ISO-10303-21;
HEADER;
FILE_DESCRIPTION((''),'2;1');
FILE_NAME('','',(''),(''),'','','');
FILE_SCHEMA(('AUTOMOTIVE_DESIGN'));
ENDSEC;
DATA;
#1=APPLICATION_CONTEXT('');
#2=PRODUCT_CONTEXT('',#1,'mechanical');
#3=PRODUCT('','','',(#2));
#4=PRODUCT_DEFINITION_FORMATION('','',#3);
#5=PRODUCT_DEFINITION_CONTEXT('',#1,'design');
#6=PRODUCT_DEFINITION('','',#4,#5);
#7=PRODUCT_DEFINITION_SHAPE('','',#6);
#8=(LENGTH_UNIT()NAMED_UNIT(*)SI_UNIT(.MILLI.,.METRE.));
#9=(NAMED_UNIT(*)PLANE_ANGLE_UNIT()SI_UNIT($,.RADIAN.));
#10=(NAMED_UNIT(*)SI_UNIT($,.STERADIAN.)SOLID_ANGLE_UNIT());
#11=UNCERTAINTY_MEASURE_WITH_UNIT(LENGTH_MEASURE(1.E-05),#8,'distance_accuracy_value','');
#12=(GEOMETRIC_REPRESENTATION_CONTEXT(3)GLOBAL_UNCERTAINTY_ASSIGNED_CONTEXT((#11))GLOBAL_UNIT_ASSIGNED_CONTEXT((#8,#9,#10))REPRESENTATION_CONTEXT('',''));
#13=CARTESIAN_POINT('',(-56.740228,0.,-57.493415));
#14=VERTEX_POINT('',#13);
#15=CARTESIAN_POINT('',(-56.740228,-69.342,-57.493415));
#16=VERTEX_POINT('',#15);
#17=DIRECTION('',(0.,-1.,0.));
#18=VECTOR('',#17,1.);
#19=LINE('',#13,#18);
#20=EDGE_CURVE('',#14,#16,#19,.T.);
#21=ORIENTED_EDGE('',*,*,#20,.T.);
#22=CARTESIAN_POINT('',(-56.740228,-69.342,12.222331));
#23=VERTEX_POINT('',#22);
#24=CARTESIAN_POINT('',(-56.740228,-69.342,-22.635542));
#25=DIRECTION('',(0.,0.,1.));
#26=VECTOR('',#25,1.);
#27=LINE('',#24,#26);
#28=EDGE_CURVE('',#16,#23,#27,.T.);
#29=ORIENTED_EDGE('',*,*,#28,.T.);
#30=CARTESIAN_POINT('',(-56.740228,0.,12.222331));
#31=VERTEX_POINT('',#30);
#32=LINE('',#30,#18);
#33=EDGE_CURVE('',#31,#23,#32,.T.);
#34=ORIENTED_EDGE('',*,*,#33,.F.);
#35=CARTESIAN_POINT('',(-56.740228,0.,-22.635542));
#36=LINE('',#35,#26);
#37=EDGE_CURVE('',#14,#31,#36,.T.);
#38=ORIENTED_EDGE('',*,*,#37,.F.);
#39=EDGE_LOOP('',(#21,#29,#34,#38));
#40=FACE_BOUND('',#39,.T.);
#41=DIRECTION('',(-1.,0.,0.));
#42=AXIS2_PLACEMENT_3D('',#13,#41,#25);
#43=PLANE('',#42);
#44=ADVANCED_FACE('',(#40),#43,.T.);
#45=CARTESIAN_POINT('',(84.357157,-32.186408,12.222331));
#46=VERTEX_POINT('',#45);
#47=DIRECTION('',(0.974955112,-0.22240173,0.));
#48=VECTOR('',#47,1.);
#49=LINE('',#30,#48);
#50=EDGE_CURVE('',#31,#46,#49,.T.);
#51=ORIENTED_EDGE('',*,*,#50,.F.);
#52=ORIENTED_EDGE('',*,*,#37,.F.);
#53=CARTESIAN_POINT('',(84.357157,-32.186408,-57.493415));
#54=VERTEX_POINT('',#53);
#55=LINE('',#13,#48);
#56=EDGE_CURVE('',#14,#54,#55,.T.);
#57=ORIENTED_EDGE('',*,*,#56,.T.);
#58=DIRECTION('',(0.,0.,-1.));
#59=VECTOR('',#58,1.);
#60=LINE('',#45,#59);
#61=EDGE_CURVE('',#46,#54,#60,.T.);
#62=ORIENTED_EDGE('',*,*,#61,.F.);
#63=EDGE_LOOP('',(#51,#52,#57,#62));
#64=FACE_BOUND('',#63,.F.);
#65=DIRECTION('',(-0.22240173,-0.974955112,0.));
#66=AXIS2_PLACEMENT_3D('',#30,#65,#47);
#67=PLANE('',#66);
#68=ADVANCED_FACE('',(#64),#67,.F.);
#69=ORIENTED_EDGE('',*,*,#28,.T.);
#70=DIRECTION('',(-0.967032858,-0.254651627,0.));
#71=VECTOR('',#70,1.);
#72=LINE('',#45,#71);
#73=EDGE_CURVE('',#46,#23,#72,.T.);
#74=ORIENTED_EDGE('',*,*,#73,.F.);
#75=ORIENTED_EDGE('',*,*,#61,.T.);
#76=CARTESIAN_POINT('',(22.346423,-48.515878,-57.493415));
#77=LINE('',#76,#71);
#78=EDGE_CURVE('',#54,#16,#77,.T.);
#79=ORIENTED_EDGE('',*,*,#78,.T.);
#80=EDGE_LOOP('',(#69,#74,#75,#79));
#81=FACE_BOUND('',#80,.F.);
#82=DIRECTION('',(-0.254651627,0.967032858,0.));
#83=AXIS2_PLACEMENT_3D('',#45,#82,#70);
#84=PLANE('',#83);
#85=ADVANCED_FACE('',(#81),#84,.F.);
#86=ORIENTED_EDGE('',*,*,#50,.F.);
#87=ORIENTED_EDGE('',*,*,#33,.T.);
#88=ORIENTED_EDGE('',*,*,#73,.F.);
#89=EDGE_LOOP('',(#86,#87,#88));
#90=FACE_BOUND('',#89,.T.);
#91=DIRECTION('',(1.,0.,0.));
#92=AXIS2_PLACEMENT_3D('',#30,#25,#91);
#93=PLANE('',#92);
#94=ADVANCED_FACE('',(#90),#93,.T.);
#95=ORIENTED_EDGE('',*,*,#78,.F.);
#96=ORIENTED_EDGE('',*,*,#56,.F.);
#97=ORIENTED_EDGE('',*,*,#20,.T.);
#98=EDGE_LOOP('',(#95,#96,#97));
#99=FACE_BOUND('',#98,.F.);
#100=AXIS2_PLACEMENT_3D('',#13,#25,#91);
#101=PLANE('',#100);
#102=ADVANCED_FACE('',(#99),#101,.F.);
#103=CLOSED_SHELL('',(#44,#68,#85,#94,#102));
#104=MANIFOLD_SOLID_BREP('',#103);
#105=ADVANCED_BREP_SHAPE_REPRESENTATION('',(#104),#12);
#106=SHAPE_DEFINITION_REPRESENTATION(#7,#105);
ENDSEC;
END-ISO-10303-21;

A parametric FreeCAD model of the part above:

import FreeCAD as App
import Part
import Sketcher
Q = App.Units.Quantity

doc = App.newDocument("Part")
params = doc.addObject("Spreadsheet::Sheet", "Params")
for row, (alias, value) in enumerate([
    ("pad1_length", "2.73 in"),
    ("pocket1_length", "4.53 in"),
    ("pocket2_length", "4.77 in"),
], start=1):
    params.set(f"A{row}", alias)
    params.set(f"B{row}", "=" + value)
    params.setAlias(f"B{row}", alias)

body = doc.addObject("PartDesign::Body", "Body")

sketch1 = body.newObject("Sketcher::SketchObject", "Sketch")
sketch1.AttachmentSupport = (doc.getObject("XZ_Plane"), [""])
sketch1.MapMode = "FlatFace"
sketch1.addGeometry([
    Part.LineSegment(App.Vector(-57, 12, 0), App.Vector(-57, -57, 0)),
    Part.LineSegment(App.Vector(-57, -57, 0), App.Vector(84, -57, 0)),
    Part.LineSegment(App.Vector(84, -57, 0), App.Vector(84, 12, 0)),
    Part.LineSegment(App.Vector(84, 12, 0), App.Vector(-57, 12, 0)),
], False)
sketch1.addConstraint([
    Sketcher.Constraint("Coincident", 0, 2, 1, 1),
    Sketcher.Constraint("Coincident", 1, 2, 2, 1),
    Sketcher.Constraint("Coincident", 2, 2, 3, 1),
    Sketcher.Constraint("Coincident", 3, 2, 0, 1),
    Sketcher.Constraint("Vertical", 0),
    Sketcher.Constraint("Horizontal", 1),
    Sketcher.Constraint("Vertical", 2),
    Sketcher.Constraint("Horizontal", 3),
    Sketcher.Constraint("DistanceX", 1, 1, 1, 2, Q("141.097385 mm")),
    Sketcher.Constraint("DistanceY", 0, 2, 0, 1, Q("69.715746 mm")),
    Sketcher.Constraint("DistanceX", 0, 2, -1, 1, Q("56.740228 mm")),
    Sketcher.Constraint("DistanceY", -1, 1, 2, 2, Q("12.222331 mm")),
])
pad1 = body.newObject("PartDesign::Pad", "Pad")
pad1.Profile = sketch1
pad1.setExpression("Length", "Params.pad1_length")

sketch2 = body.newObject("Sketcher::SketchObject", "Sketch001")
sketch2.AttachmentSupport = (doc.getObject("XY_Plane"), [""])
sketch2.MapMode = "FlatFace"
sketch2.AttachmentOffset = App.Placement(App.Vector(0, 0, 12.222331), App.Rotation())
sketch2.addGeometry([
    Part.LineSegment(App.Vector(84, -32, 0), App.Vector(-57, -69, 0)),
    Part.LineSegment(App.Vector(-57, -69, 0), App.Vector(84, -69, 0)),
    Part.LineSegment(App.Vector(84, -69, 0), App.Vector(84, -32, 0)),
], False)
sketch2.addConstraint([
    Sketcher.Constraint("Coincident", 0, 2, 1, 1),
    Sketcher.Constraint("Coincident", 1, 2, 2, 1),
    Sketcher.Constraint("Coincident", 2, 2, 0, 1),
    Sketcher.Constraint("Horizontal", 1),
    Sketcher.Constraint("Vertical", 2),
    Sketcher.Constraint("DistanceY", 0, 2, -1, 1, Q("2.73 in")),
    Sketcher.Constraint("Distance", 0, Q("145.90754 mm")),
    Sketcher.Constraint("DistanceX", 1, 1, 1, 2, Q("141.097385 mm")),
    Sketcher.Constraint("DistanceX", 0, 2, -1, 1, Q("56.740228 mm")),
])
pocket1 = body.newObject("PartDesign::Pocket", "Pocket")
pocket1.Profile = sketch2
pocket1.setExpression("Length", "Params.pocket1_length")

sketch3 = body.newObject("Sketcher::SketchObject", "Sketch002")
sketch3.AttachmentSupport = (doc.getObject("XY_Plane"), [""])
sketch3.MapMode = "FlatFace"
sketch3.AttachmentOffset = App.Placement(App.Vector(0, 0, 12.222331), App.Rotation())
sketch3.addGeometry([
    Part.LineSegment(App.Vector(84, 0, 0), App.Vector(-57, 0, 0)),
    Part.LineSegment(App.Vector(-57, 0, 0), App.Vector(84, -32, 0)),
    Part.LineSegment(App.Vector(84, -32, 0), App.Vector(84, 0, 0)),
], False)
sketch3.addConstraint([
    Sketcher.Constraint("Coincident", 0, 2, 1, 1),
    Sketcher.Constraint("Coincident", 1, 2, 2, 1),
    Sketcher.Constraint("Coincident", 2, 2, 0, 1),
    Sketcher.Constraint("Horizontal", 0),
    Sketcher.Constraint("Vertical", 2),
    Sketcher.Constraint("PointOnObject", 0, 2, -1),
    Sketcher.Constraint("Distance", 1, Q("144.72193 mm")),
    Sketcher.Constraint("DistanceX", 0, 2, 0, 1, Q("141.097385 mm")),
    Sketcher.Constraint("DistanceX", 0, 2, -1, 1, Q("56.740228 mm")),
])
pocket2 = body.newObject("PartDesign::Pocket", "Pocket001")
pocket2.Profile = sketch3
pocket2.setExpression("Length", "Params.pocket2_length")

doc.recompute()
